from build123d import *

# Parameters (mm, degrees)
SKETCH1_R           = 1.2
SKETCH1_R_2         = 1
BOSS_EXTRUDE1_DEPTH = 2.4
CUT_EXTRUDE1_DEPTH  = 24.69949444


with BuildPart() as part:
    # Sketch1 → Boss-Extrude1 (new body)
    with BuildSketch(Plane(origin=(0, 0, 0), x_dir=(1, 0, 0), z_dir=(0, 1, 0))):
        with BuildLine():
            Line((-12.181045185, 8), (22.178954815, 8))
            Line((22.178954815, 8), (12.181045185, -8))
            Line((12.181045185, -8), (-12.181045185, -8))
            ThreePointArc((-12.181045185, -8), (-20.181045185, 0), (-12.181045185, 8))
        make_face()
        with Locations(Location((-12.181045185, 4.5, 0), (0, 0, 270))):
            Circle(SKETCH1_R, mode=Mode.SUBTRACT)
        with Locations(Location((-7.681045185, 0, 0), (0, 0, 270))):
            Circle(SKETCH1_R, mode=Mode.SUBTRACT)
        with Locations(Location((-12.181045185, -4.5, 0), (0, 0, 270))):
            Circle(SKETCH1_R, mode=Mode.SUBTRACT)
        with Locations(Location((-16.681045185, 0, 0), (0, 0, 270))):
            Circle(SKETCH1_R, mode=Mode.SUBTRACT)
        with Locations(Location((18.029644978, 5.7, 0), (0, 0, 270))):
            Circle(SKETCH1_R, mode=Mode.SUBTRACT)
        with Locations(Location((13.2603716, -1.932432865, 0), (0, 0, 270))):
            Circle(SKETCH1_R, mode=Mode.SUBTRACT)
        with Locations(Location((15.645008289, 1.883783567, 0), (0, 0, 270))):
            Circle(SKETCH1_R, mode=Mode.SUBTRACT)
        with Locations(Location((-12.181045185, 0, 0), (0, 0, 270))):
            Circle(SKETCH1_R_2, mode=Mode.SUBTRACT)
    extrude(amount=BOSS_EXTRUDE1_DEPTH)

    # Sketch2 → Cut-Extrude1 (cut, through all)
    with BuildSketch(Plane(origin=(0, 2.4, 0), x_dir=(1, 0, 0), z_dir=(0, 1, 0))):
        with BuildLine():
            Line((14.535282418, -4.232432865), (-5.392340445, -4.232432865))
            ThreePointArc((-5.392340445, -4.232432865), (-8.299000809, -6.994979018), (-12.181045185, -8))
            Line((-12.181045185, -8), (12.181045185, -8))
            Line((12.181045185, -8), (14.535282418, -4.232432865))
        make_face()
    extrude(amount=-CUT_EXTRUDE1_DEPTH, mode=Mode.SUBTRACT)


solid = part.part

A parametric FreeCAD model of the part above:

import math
import FreeCAD as App
import Part
import Sketcher
from FreeCAD import Vector
Q = App.Units.Quantity

doc = App.newDocument("Part")
body = doc.addObject("PartDesign::Body", "Body")

# Sketch on XZ plane
sketch1 = doc.addObject("Sketcher::SketchObject", "Sketch")
body.addObject(sketch1)
sketch1.AttachmentSupport = (doc.XZ_Plane, [""])
sketch1.MapMode = "FlatFace"
sketch1.addGeometry([
    Part.LineSegment(Vector(22.2, -8, 0), Vector(-12.2, -8, 0)),  # 0
    Part.ArcOfCircle(Part.Circle(Vector(-12.2, 0, 0), Vector(0, 0, 1), 8), math.radians(90), math.radians(270)),  # 1
    Part.LineSegment(Vector(-12.2, 8, 0), Vector(12.2, 8, 0)),  # 2
    Part.LineSegment(Vector(12.2, 8, 0), Vector(22.2, -8, 0)),  # 3
    Part.Circle(Vector(13.3, 1.9, 0), Vector(0, 0, 1), 1.2),  # 4
    Part.Circle(Vector(-12.2, 4.5, 0), Vector(0, 0, 1), 1.2),  # 5
    Part.Circle(Vector(-7.7, 0, 0), Vector(0, 0, 1), 1.2),  # 6
    Part.Circle(Vector(-12.2, 0, 0), Vector(0, 0, 1), 1),  # 7
    Part.Circle(Vector(-16.7, 0, 0), Vector(0, 0, 1), 1.2),  # 8
    Part.Circle(Vector(15.6, -1.9, 0), Vector(0, 0, 1), 1.2),  # 9
    Part.Circle(Vector(18, -5.7, 0), Vector(0, 0, 1), 1.2),  # 10
    Part.Circle(Vector(-12.2, -4.5, 0), Vector(0, 0, 1), 1.2),  # 11
], False)
sketch1.addConstraint([
    Sketcher.Constraint("Tangent", 0, 2, 1, 2),
    Sketcher.Constraint("Tangent", 1, 1, 2, 1),
    Sketcher.Constraint("Coincident", 2, 2, 3, 1),
    Sketcher.Constraint("Coincident", 3, 2, 0, 1),
    Sketcher.Constraint("Horizontal", 0),
    Sketcher.Constraint("Horizontal", 2),
    Sketcher.Constraint("Coincident", 7, 3, 1, 3),
    Sketcher.Constraint("Equal", 4, 5),
    Sketcher.Constraint("Equal", 5, 6),
    Sketcher.Constraint("Equal", 6, 8),
    Sketcher.Constraint("Equal", 8, 9),
    Sketcher.Constraint("Equal", 9, 10),
    Sketcher.Constraint("Equal", 10, 11),
    Sketcher.Constraint("Symmetric", 0, 2, 2, 2, -1, 1),
    Sketcher.Constraint("Symmetric", 5, 3, 11, 3, -1),
    Sketcher.Constraint("PointOnObject", 6, 3, -1),
    Sketcher.Constraint("PointOnObject", 8, 3, -1),
    Sketcher.Constraint("Vertical", 1, 3, 5, 3),
    Sketcher.Constraint("Diameter", 7, Q("2 mm")),
    Sketcher.Constraint("Radius", 1, Q("8 mm")),
    Sketcher.Constraint("Diameter", 4, Q("2.4 mm")),
    Sketcher.Constraint("Angle", 3, Q("-58 deg")),
    Sketcher.Constraint("DistanceX", 8, 3, 6, 3, Q("9 mm")),
    Sketcher.Constraint("DistanceY", 11, 3, 5, 3, Q("9 mm")),
    Sketcher.Constraint("DistanceX", 0, 2, 0, 1, Q("34.36 mm")),
    Sketcher.Constraint("DistanceY", 10, 3, -1, 1, Q("5.7 mm")),
    Sketcher.Constraint("DistanceX", 1, 3, 6, 3, Q("4.5 mm")),
    Sketcher.Constraint("DistanceX", 2, 2, 10, 3, Q("5.8486 mm")),
    Sketcher.Constraint("DistanceX", -1, 1, 4, 3, Q("13.260372 mm")),
    Sketcher.Constraint("DistanceX", -1, 1, 9, 3, Q("15.645008 mm")),
    Sketcher.Constraint("DistanceY", -1, 1, 4, 3, Q("1.932433 mm")),
    Sketcher.Constraint("DistanceY", 9, 3, -1, 1, Q("1.883784 mm")),
])
pad1 = doc.addObject("PartDesign::Pad", "Pad")
body.addObject(pad1)
pad1.Profile = sketch1
pad1.Length = 2.4
pad1.Reversed = True

# Sketch on XZ plane
sketch2 = doc.addObject("Sketcher::SketchObject", "Sketch001")
body.addObject(sketch2)
sketch2.AttachmentSupport = (doc.XZ_Plane, [""])
sketch2.MapMode = "FlatFace"
sketch2.AttachmentOffset = App.Placement(Vector(0, 0, -2.4), App.Rotation())
sketch2.addGeometry([
    Part.LineSegment(Vector(14.5, 4.2, 0), Vector(-5.4, 4.2, 0)),
    Part.ArcOfCircle(Part.Circle(Vector(-12.2, 0, 0), Vector(0, 0, 1), 8), math.radians(32), math.radians(90)),
    Part.LineSegment(Vector(-12.2, 8, 0), Vector(12.2, 8, 0)),
    Part.LineSegment(Vector(12.2, 8, 0), Vector(14.5, 4.2, 0)),
], False)
sketch2.addConstraint([
    Sketcher.Constraint("Coincident", 0, 2, 1, 1),
    Sketcher.Constraint("Tangent", 1, 2, 2, 1),
    Sketcher.Constraint("Coincident", 2, 2, 3, 1),
    Sketcher.Constraint("Coincident", 3, 2, 0, 1),
    Sketcher.Constraint("Horizontal", 0),
    Sketcher.Constraint("Horizontal", 2),
    Sketcher.Constraint("PointOnObject", 1, 3, -1),
    Sketcher.Constraint("Radius", 1, Q("8 mm")),
    Sketcher.Constraint("Angle", 3, Q("-58 deg")),
    Sketcher.Constraint("DistanceX", 2, 1, 2, 2, Q("24.36209 mm")),
    Sketcher.Constraint("DistanceX", 0, 2, -1, 1, Q("5.39234 mm")),
    Sketcher.Constraint("Distance", 3, Q("4.442634 mm")),
])
pocket1 = doc.addObject("PartDesign::Pocket", "Pocket")
body.addObject(pocket1)
pocket1.Profile = sketch2
pocket1.Type = "ThroughAll"
pocket1.Reversed = True

doc.recompute()
